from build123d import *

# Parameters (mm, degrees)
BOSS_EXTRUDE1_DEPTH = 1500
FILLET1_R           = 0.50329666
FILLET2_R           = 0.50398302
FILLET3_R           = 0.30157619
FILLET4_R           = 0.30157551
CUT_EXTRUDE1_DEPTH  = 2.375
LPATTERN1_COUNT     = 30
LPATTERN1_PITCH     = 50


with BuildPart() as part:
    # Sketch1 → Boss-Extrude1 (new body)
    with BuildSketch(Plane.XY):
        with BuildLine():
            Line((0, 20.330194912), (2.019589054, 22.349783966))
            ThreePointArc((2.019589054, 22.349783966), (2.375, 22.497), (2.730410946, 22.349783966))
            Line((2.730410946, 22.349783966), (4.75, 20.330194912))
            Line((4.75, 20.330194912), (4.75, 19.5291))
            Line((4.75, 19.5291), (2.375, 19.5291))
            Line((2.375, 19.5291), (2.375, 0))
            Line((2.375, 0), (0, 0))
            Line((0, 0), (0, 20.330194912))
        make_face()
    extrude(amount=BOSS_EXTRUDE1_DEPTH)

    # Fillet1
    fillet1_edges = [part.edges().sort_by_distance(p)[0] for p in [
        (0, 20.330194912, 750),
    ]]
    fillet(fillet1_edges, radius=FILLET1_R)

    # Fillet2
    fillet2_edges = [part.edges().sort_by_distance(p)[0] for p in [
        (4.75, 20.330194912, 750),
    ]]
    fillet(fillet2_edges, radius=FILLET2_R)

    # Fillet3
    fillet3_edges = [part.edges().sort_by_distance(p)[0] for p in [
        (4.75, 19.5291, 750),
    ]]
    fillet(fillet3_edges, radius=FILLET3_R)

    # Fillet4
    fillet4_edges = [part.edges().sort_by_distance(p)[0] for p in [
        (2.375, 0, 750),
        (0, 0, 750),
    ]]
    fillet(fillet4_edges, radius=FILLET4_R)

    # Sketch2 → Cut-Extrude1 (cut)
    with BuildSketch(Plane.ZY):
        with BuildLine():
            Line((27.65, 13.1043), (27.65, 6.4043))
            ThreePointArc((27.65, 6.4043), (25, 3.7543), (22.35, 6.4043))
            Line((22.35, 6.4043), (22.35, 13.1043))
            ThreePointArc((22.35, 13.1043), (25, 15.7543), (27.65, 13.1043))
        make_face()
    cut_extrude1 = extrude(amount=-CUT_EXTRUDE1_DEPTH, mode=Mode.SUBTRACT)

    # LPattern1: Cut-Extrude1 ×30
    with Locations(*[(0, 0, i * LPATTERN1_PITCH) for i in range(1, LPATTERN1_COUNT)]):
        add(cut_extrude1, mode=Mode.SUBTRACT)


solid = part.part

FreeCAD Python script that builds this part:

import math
import FreeCAD as App
import Part
import Sketcher
from FreeCAD import Vector


def edges_at(feature, points):
    """Names of the edges that pass closest to the given points."""
    edges = feature.Shape.Edges
    near = lambda p: min(range(len(edges)), key=lambda i: edges[i].distToShape(Part.Vertex(*p))[0])
    return sorted({f"Edge{near(p) + 1}" for p in points})

doc = App.newDocument("Part")
body = doc.addObject("PartDesign::Body", "Body")

sketch1 = body.newObject("Sketcher::SketchObject", "Sketch")
sketch1.AttachmentSupport = (doc.getObject("XY_Plane"), [""])
sketch1.MapMode = "FlatFace"
sketch1.addGeometry([
    Part.LineSegment(Vector(2, 22.3, 0), Vector(0, 20.3, 0)),
    Part.LineSegment(Vector(0, 20.3, 0), Vector(0, 0, 0)),
    Part.LineSegment(Vector(0, 0, 0), Vector(2.4, 0, 0)),
    Part.LineSegment(Vector(2.4, 0, 0), Vector(2.4, 19.5, 0)),
    Part.LineSegment(Vector(2.4, 19.5, 0), Vector(4.8, 19.5, 0)),
    Part.LineSegment(Vector(4.8, 19.5, 0), Vector(4.8, 20.3, 0)),
    Part.LineSegment(Vector(4.8, 20.3, 0), Vector(2.7, 22.3, 0)),
    Part.ArcOfCircle(Part.Circle(Vector(2.4, 22, 0), Vector(0, 0, 1), 0.5), math.radians(45), math.radians(135)),
], False)
sketch1.addConstraint([
    Sketcher.Constraint("Coincident", 0, 2, 1, 1),
    Sketcher.Constraint("Coincident", 1, 2, 2, 1),
    Sketcher.Constraint("Coincident", 2, 2, 3, 1),
    Sketcher.Constraint("Coincident", 3, 2, 4, 1),
    Sketcher.Constraint("Coincident", 4, 2, 5, 1),
    Sketcher.Constraint("Coincident", 5, 2, 6, 1),
    Sketcher.Constraint("Tangent", 6, 2, 7, 1),
    Sketcher.Constraint("Tangent", 7, 2, 0, 1),
    Sketcher.Constraint("Vertical", 1),
    Sketcher.Constraint("Horizontal", 2),
    Sketcher.Constraint("Vertical", 3),
    Sketcher.Constraint("Horizontal", 4),
    Sketcher.Constraint("Vertical", 5),
    Sketcher.Constraint("Coincident", 1, 2, -1, 1),
    Sketcher.Constraint("Perpendicular", 0, 6),
    Sketcher.Constraint("Horizontal", 0, 2, 5, 2),
    Sketcher.Constraint("Horizontal", 6, 2, 7, 2),
    Sketcher.Constraint("Vertical", 7, 3, 2, 2),
    Sketcher.Constraint("DistanceX", 2, 1, 2, 2, 2.375),
    Sketcher.Constraint("DistanceY", 3, 1, 3, 2, 19.5291),
    Sketcher.Constraint("Radius", 7, 0.502627),
    Sketcher.Constraint("DistanceY", 1, 2, 1, 1, 20.330195),
])
pad1 = body.newObject("PartDesign::Pad", "Pad")
pad1.Profile = sketch1
pad1.Length = 1500
doc.recompute()

fillet = body.newObject("PartDesign::Fillet", "Fillet")
fillet.Base = (pad1, edges_at(pad1, [(0, 20.33, 750)]))
fillet.Radius = 0.503297
doc.recompute()

fillet2 = body.newObject("PartDesign::Fillet", "Fillet001")
fillet2.Base = (fillet, edges_at(fillet, [(4.75, 20.33, 750)]))
fillet2.Radius = 0.503983
doc.recompute()

fillet3 = body.newObject("PartDesign::Fillet", "Fillet002")
fillet3.Base = (fillet2, edges_at(fillet2, [(4.75, 19.529, 750)]))
fillet3.Radius = 0.301576
doc.recompute()

fillet4 = body.newObject("PartDesign::Fillet", "Fillet003")
fillet4.Base = (fillet3, edges_at(fillet3, [(2.375, 0, 750), (0, 0, 750)]))
fillet4.Radius = 0.301576

sketch2 = body.newObject("Sketcher::SketchObject", "Sketch001")
sketch2.AttachmentSupport = (doc.getObject("YZ_Plane"), [""])
sketch2.MapMode = "FlatFace"
sketch2.addGeometry([
    Part.LineSegment(Vector(6.4, 27.6, 0), Vector(13.1, 27.6, 0)),
    Part.ArcOfCircle(Part.Circle(Vector(13.1, 25, 0), Vector(0, 0, 1), 2.6), math.radians(-90), math.radians(90)),
    Part.LineSegment(Vector(13.1, 22.4, 0), Vector(6.4, 22.4, 0)),
    Part.ArcOfCircle(Part.Circle(Vector(6.4, 25, 0), Vector(0, 0, 1), 2.6), math.radians(90), math.radians(270)),
], False)
sketch2.addConstraint([
    Sketcher.Constraint("Tangent", 0, 2, 1, 2),
    Sketcher.Constraint("Tangent", 1, 1, 2, 1),
    Sketcher.Constraint("Tangent", 2, 2, 3, 2),
    Sketcher.Constraint("Tangent", 3, 1, 0, 1),
    Sketcher.Constraint("Horizontal", 0),
    Sketcher.Constraint("Horizontal", 2),
    Sketcher.Constraint("Radius", 1, 2.65),
    Sketcher.Constraint("DistanceX", 0, 1, 0, 2, 6.7),
    Sketcher.Constraint("DistanceY", -1, 1, 1, 3, 25.0),
    Sketcher.Constraint("DistanceX", -1, 1, 1, 3, 13.1043),
])
pocket1 = body.newObject("PartDesign::Pocket", "Pocket")
pocket1.Profile = sketch2
pocket1.Length = 2.375
pocket1.Reversed = True
doc.recompute()

linearpattern = body.newObject("PartDesign::LinearPattern", "LinearPattern")
linearpattern.Originals = [pocket1]
linearpattern.Direction = (doc.getObject("Z_Axis"), [""])
linearpattern.Mode = "offset"
linearpattern.Offset = 50
linearpattern.Occurrences = 30
body.Tip = linearpattern

doc.recompute()
